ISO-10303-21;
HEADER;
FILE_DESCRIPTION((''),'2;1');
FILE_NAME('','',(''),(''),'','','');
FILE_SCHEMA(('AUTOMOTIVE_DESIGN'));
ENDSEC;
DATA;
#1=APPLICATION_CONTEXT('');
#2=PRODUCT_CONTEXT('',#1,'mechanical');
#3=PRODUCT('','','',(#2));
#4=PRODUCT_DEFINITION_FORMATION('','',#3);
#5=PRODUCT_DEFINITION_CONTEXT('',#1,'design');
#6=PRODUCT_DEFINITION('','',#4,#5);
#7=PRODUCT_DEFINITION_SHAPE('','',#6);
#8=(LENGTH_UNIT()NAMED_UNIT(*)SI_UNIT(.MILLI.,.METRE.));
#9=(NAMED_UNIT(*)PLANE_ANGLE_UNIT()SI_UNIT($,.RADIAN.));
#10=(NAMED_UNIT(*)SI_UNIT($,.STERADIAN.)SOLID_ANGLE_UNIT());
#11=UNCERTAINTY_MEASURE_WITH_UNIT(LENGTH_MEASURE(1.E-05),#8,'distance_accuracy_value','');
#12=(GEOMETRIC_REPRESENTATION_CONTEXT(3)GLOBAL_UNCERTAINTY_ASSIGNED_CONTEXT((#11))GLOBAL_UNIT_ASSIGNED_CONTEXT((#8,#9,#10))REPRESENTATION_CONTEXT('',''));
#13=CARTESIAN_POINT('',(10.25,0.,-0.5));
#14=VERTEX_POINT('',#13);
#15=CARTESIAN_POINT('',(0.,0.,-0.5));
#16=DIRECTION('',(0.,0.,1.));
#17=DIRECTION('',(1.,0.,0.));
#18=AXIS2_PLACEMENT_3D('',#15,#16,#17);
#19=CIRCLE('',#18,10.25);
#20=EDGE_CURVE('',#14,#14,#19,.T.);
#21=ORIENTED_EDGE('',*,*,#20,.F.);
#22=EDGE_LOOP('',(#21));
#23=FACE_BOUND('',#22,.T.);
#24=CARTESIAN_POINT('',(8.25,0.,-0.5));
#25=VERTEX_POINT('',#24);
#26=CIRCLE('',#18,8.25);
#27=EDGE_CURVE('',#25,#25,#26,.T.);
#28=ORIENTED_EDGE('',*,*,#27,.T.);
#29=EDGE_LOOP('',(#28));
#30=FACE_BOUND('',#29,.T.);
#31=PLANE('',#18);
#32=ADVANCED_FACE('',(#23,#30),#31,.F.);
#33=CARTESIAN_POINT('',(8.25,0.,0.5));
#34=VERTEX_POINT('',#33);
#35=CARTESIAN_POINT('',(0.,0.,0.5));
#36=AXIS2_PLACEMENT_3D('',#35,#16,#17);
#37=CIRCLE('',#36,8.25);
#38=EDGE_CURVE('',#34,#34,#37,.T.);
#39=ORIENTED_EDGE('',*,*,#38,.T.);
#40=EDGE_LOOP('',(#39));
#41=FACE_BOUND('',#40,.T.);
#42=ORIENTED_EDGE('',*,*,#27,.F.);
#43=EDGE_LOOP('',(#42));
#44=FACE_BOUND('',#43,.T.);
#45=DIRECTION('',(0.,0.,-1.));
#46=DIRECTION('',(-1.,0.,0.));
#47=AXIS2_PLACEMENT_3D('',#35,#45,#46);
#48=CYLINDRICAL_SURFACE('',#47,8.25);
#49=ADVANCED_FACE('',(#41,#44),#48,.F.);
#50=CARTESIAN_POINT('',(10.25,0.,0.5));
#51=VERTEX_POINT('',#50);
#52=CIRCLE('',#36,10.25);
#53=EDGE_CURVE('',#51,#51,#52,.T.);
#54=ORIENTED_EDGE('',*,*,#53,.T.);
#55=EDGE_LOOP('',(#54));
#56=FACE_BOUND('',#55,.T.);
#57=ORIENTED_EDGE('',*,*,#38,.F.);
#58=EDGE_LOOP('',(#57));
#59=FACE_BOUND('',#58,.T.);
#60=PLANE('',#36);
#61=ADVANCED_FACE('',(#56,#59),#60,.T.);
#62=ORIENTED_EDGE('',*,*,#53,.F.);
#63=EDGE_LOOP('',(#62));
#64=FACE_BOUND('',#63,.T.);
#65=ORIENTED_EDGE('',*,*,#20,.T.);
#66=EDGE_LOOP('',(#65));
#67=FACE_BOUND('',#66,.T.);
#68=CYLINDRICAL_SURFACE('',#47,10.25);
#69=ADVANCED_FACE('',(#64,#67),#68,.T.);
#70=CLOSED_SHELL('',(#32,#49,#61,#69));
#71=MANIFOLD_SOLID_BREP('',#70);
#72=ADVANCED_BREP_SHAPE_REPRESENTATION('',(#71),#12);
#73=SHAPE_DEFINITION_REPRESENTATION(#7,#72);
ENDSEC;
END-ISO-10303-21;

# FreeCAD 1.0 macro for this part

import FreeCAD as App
import Part
import Sketcher
from FreeCAD import Vector
Q = App.Units.Quantity

doc = App.newDocument("Part")
body = doc.addObject("PartDesign::Body", "Body")

sketch1 = doc.addObject("Sketcher::SketchObject", "Sketch")
body.addObject(sketch1)
sketch1.AttachmentSupport = (doc.XY_Plane, [""])
sketch1.MapMode = "FlatFace"
sketch1.addGeometry(Part.Circle(Vector(0, 0, 0), Vector(0, 0, 1), 10.25), False)
sketch1.addGeometry(Part.Circle(Vector(0, 0, 0), Vector(0, 0, 1), 8.25), False)
sketch1.addConstraint(Sketcher.Constraint("Coincident", 0, 3, -1, 1))
sketch1.addConstraint(Sketcher.Constraint("Coincident", 1, 3, -1, 1))
sketch1.addConstraint(Sketcher.Constraint("Diameter", 0, Q("20.5 mm")))
sketch1.addConstraint(Sketcher.Constraint("Diameter", 1, Q("16.5 mm")))
pad1 = doc.addObject("PartDesign::Pad", "Pad")
body.addObject(pad1)
pad1.Profile = sketch1
pad1.Length = 1
pad1.Midplane = True

doc.recompute()
